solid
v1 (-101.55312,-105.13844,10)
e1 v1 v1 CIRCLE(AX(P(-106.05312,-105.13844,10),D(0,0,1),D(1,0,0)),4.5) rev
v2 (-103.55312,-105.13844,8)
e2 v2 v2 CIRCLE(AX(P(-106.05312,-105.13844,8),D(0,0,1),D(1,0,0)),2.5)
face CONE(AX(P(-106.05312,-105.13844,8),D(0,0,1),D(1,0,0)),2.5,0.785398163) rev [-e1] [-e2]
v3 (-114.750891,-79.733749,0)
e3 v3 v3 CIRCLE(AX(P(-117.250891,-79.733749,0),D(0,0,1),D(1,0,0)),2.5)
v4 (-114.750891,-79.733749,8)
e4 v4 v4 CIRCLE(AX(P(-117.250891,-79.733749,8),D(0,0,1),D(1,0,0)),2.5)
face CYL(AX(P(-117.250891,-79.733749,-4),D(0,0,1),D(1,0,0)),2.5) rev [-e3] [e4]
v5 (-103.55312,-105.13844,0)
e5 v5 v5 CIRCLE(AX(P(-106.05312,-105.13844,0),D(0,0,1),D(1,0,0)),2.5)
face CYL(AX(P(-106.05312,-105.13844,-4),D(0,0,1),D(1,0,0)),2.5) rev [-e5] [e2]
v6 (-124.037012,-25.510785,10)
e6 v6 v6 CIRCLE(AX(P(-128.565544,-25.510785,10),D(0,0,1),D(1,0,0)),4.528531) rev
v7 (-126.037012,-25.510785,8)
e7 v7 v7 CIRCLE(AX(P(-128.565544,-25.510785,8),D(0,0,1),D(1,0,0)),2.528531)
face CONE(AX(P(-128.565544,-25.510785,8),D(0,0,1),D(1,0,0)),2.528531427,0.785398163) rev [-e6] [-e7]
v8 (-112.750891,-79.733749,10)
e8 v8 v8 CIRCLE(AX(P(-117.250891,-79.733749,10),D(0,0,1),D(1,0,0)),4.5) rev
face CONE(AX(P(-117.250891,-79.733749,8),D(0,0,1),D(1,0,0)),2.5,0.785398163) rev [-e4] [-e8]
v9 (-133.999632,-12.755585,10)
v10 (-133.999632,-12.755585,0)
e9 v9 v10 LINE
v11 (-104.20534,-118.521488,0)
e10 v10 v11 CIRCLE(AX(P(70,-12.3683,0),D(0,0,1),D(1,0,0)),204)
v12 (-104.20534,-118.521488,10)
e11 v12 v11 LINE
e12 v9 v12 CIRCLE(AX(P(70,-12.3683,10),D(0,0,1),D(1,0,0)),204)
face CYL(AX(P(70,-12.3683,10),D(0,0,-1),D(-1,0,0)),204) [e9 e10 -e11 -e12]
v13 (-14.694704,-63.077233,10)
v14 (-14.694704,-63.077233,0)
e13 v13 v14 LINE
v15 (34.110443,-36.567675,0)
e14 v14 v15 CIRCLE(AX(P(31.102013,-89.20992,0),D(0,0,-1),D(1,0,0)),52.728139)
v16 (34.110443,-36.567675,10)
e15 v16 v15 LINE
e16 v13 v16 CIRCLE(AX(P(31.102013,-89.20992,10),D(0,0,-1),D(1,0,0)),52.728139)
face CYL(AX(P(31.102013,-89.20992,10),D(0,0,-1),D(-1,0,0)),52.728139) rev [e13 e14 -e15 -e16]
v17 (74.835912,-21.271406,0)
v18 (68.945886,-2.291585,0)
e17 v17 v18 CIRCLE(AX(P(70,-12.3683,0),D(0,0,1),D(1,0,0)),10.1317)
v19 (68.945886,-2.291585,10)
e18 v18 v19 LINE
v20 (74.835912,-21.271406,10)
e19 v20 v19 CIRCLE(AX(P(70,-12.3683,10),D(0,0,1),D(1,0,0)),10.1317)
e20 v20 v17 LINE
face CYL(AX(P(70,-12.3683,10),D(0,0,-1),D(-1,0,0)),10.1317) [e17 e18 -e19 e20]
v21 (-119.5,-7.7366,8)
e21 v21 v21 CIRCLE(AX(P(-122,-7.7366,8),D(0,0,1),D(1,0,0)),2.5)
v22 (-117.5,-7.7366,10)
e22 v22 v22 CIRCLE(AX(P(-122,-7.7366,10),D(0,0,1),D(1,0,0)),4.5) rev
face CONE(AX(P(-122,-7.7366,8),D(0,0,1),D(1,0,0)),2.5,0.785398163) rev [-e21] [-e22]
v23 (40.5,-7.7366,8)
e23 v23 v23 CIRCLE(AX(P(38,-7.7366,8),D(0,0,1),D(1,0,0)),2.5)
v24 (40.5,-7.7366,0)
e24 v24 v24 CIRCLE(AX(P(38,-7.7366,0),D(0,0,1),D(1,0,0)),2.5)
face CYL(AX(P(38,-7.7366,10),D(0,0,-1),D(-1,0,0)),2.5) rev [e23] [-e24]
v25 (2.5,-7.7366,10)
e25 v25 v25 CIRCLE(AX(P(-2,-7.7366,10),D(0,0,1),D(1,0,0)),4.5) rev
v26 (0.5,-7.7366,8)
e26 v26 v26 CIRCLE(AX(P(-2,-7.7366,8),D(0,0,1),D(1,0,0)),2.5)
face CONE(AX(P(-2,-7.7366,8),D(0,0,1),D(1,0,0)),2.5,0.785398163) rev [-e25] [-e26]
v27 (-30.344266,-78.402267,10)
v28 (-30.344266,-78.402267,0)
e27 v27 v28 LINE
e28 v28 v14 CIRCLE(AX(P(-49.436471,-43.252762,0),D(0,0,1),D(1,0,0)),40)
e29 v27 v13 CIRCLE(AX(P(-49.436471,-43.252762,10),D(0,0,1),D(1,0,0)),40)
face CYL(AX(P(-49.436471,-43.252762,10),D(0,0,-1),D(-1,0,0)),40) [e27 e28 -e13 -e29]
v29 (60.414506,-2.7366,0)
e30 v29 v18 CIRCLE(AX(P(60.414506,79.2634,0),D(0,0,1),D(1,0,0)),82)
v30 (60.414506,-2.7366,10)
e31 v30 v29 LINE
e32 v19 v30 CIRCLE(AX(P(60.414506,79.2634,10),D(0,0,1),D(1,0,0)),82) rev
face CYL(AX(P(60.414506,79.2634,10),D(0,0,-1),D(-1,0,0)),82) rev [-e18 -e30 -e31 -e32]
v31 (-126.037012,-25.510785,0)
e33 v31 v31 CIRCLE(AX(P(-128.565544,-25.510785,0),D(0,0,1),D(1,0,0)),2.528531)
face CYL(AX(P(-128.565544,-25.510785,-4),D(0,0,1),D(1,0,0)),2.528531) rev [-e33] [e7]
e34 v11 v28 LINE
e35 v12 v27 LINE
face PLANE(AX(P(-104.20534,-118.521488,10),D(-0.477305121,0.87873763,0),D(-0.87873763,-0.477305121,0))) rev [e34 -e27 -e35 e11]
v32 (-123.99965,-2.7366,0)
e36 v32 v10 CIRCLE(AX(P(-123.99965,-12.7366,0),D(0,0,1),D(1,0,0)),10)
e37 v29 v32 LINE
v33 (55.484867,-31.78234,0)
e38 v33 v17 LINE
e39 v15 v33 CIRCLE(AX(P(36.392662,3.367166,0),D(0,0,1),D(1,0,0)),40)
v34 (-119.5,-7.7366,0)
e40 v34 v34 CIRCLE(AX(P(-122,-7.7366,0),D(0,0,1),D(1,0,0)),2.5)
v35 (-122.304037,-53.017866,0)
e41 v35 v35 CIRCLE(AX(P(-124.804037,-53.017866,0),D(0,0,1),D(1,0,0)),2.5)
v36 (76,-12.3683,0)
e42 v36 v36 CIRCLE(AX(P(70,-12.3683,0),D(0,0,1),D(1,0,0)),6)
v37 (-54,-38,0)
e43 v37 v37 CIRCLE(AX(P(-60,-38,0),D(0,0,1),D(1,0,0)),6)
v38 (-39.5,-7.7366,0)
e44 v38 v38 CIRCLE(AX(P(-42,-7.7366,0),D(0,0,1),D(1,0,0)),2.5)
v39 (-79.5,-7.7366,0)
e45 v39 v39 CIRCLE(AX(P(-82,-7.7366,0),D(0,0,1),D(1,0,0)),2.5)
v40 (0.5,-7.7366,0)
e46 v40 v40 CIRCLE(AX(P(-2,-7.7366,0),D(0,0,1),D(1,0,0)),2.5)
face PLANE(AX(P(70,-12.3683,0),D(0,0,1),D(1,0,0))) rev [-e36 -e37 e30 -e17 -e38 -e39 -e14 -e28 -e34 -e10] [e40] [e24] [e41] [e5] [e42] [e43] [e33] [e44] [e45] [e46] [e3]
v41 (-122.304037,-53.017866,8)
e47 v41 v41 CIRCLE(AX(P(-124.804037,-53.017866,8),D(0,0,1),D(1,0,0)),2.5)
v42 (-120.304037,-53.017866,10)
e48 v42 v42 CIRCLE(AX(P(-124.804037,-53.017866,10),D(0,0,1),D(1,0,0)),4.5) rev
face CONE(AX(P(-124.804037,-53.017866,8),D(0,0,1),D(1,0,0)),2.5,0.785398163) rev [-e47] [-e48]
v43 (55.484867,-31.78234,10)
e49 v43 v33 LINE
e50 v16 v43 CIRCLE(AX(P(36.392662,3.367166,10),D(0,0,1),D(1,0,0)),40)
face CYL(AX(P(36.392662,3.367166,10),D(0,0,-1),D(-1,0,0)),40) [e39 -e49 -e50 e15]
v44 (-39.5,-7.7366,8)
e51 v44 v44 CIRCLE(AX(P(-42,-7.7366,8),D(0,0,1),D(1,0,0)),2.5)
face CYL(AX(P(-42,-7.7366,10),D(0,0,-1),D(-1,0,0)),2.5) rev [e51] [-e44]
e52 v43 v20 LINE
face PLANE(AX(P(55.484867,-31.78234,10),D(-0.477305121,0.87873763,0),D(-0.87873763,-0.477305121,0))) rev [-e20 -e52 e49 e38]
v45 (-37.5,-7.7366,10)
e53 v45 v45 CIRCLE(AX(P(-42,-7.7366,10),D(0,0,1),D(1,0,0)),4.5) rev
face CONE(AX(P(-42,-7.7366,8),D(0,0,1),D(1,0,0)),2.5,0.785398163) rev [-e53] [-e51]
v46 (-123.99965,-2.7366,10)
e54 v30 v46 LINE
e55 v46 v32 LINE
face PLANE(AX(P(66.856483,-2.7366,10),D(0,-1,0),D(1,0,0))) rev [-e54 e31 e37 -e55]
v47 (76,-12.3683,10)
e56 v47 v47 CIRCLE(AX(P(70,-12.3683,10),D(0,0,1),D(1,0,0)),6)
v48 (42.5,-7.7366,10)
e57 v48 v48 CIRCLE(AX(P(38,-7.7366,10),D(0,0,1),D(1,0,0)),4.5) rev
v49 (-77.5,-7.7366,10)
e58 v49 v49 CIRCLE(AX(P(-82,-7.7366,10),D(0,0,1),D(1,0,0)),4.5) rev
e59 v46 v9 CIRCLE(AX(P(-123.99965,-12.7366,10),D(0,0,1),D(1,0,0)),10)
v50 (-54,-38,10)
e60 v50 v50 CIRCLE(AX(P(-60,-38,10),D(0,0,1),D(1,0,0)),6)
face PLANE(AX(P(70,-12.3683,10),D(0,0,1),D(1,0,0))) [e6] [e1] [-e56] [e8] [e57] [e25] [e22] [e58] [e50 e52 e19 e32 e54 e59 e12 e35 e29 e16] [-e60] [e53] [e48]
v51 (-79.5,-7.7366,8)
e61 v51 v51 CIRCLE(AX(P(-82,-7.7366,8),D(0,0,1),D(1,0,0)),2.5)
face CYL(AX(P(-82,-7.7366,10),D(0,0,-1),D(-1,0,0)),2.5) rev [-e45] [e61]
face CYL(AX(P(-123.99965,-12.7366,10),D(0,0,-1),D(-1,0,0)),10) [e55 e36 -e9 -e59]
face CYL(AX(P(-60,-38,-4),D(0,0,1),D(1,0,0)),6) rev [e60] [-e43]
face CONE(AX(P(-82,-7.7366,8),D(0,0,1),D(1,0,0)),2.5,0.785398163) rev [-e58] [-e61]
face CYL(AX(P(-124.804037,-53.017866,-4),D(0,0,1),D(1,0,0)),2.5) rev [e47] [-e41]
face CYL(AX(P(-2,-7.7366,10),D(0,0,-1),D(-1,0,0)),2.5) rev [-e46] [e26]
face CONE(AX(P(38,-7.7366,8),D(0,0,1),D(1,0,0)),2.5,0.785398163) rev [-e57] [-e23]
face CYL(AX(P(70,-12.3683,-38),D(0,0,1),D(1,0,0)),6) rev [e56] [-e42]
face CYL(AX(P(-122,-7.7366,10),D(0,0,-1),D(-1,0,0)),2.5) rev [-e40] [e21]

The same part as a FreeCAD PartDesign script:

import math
import FreeCAD as App
import Part
import Sketcher


def edges_at(feature, points):
    """Names of the edges that pass closest to the given points."""
    edges = feature.Shape.Edges
    near = lambda p: min(range(len(edges)), key=lambda i: edges[i].distToShape(Part.Vertex(*p))[0])
    return sorted({f"Edge{near(p) + 1}" for p in points})

doc = App.newDocument("Part")
body = doc.addObject("PartDesign::Body", "Body")

# Sketch on XY plane
sketch1 = doc.addObject("Sketcher::SketchObject", "Sketch")
body.addObject(sketch1)
sketch1.AttachmentSupport = (doc.XY_Plane, [""])
sketch1.MapMode = "FlatFace"
sketch1.addGeometry([
    Part.LineSegment(App.Vector(55.5, -31.8, 0), App.Vector(74.8, -21.3, 0)),  # 0
    Part.ArcOfCircle(Part.Circle(App.Vector(70, -12.4, 0), App.Vector(0, 0, 1), 10.1), math.radians(-61), math.radians(108)),  # 1
    Part.LineSegment(App.Vector(66.9, -2.7, 0), App.Vector(-124, -2.7, 0)),  # 2
    Part.ArcOfCircle(Part.Circle(App.Vector(-124, -12.7, 0), App.Vector(0, 0, 1), 10), math.radians(90), math.radians(180)),  # 3
    Part.ArcOfCircle(Part.Circle(App.Vector(70, -12.4, 0), App.Vector(0, 0, 1), 204), math.radians(-180), math.radians(-149)),  # 4
    Part.LineSegment(App.Vector(-104.2, -118.5, 0), App.Vector(-30.3, -78.4, 0)),  # 5
    Part.ArcOfCircle(Part.Circle(App.Vector(-49.4, -43.3, 0), App.Vector(0, 0, 1), 40), math.radians(-61), math.radians(-30)),  # 6
    Part.ArcOfCircle(Part.Circle(App.Vector(31.1, -89.2, 0), App.Vector(0, 0, 1), 52.7), math.radians(87), math.radians(150)),  # 7
    Part.ArcOfCircle(Part.Circle(App.Vector(36.4, 3.4, 0), App.Vector(0, 0, 1), 40), math.radians(-93), math.radians(-61)),  # 8
    Part.Circle(App.Vector(-122, -7.7, 0), App.Vector(0, 0, 1), 2.5),  # 9
    Part.Circle(App.Vector(-82, -7.7, 0), App.Vector(0, 0, 1), 2.5),  # 10
    Part.Circle(App.Vector(-42, -7.7, 0), App.Vector(0, 0, 1), 2.5),  # 11
    Part.Circle(App.Vector(-2, -7.7, 0), App.Vector(0, 0, 1), 2.5),  # 12
    Part.Circle(App.Vector(38, -7.7, 0), App.Vector(0, 0, 1), 2.5),  # 13
], False)
sketch1.addConstraint([
    Sketcher.Constraint("Tangent", 0, 2, 1, 1),
    Sketcher.Constraint("Coincident", 1, 2, 2, 1),
    Sketcher.Constraint("Tangent", 2, 2, 3, 1),
    Sketcher.Constraint("Tangent", 3, 2, 4, 1),
    Sketcher.Constraint("Coincident", 4, 2, 5, 1),
    Sketcher.Constraint("Tangent", 5, 2, 6, 1),
    Sketcher.Constraint("Tangent", 6, 2, 7, 2),
    Sketcher.Constraint("Tangent", 7, 1, 8, 1),
    Sketcher.Constraint("Tangent", 8, 2, 0, 1),
    Sketcher.Constraint("Horizontal", 2),
    Sketcher.Constraint("Coincident", 4, 3, 1, 3),
    Sketcher.Constraint("Equal", 6, 8),
    Sketcher.Constraint("Equal", 9, 10),
    Sketcher.Constraint("Equal", 10, 11),
    Sketcher.Constraint("Equal", 11, 12),
    Sketcher.Constraint("Equal", 12, 13),
    Sketcher.Constraint("Parallel", 0, 5),
    Sketcher.Constraint("Horizontal", 9, 3, 10, 3),
    Sketcher.Constraint("Horizontal", 10, 3, 11, 3),
    Sketcher.Constraint("Horizontal", 11, 3, 12, 3),
    Sketcher.Constraint("Horizontal", 12, 3, 13, 3),
    Sketcher.Constraint("Diameter", 9, 5.0),
    Sketcher.Constraint("Radius", 3, 10.0),
    Sketcher.Constraint("Radius", 4, 204.0),
    Sketcher.Constraint("Radius", 6, 40.0),
    Sketcher.Constraint("DistanceX", -1, 1, 1, 3, 70.0),
    Sketcher.Constraint("DistanceX", 9, 3, -1, 1, 122.0),
    Sketcher.Constraint("DistanceX", 10, 3, -1, 1, 82.0),
    Sketcher.Constraint("DistanceX", 11, 3, -1, 1, 42.0),
    Sketcher.Constraint("DistanceX", 12, 3, -1, 1, 2.0),
    Sketcher.Constraint("DistanceX", -1, 1, 13, 3, 38.0),
    Sketcher.Constraint("DistanceY", 3, 3, 9, 3, 5.0),
    Sketcher.Constraint("Radius", 1, 10.1317),
    Sketcher.Constraint("Radius", 7, 52.728139),
    Sketcher.Constraint("DistanceY", 1, 3, -1, 1, 12.3683),
    Sketcher.Constraint("DistanceY", 3, 3, -1, 1, 12.7366),
    Sketcher.Constraint("DistanceX", 6, 3, -1, 1, 49.436471),
    Sketcher.Constraint("DistanceY", 7, 3, -1, 1, 89.20992),
    Sketcher.Constraint("DistanceX", 4, 2, -1, 1, 104.20534),
    Sketcher.Constraint("DistanceY", 8, 2, -1, 1, 31.78234),
])
pad1 = doc.addObject("PartDesign::Pad", "Pad")
body.addObject(pad1)
pad1.Profile = sketch1
pad1.Length = 10
doc.recompute()

chamfer = doc.addObject("PartDesign::Chamfer", "Chamfer")
body.addObject(chamfer)
chamfer.Base = (pad1, edges_at(pad1, [
    (-124.5, -7.737, 10),
    (-84.5, -7.737, 10),
    (-44.5, -7.737, 10),
    (-4.5, -7.737, 10),
    (35.5, -7.737, 10),
]))
chamfer.Size = 2

# Sketch on XY plane
sketch2 = doc.addObject("Sketcher::SketchObject", "Sketch001")
body.addObject(sketch2)
sketch2.AttachmentSupport = (doc.XY_Plane, [""])
sketch2.MapMode = "FlatFace"
sketch2.AttachmentOffset = App.Placement(App.Vector(0, 0, 10), App.Rotation())
sketch2.addGeometry(Part.Circle(App.Vector(70, -12, 0), App.Vector(0, 0, 1), 6), False)
sketch2.addConstraint([
    Sketcher.Constraint("Diameter", 0, 12.0),
    Sketcher.Constraint("DistanceX", -1, 1, 0, 3, 70.0),
    Sketcher.Constraint("DistanceY", 0, 3, -1, 1, 12.3683),
])
pocket1 = doc.addObject("PartDesign::Pocket", "Pocket")
body.addObject(pocket1)
pocket1.Profile = sketch2
pocket1.Length = 48

# Sketch on XY plane
sketch3 = doc.addObject("Sketcher::SketchObject", "Sketch002")
body.addObject(sketch3)
sketch3.AttachmentSupport = (doc.XY_Plane, [""])
sketch3.MapMode = "FlatFace"
sketch3.AttachmentOffset = App.Placement(App.Vector(0, 0, 10), App.Rotation())
sketch3.addGeometry(Part.Circle(App.Vector(-60, -38, 0), App.Vector(0, 0, 1), 6), False)
sketch3.addConstraint([
    Sketcher.Constraint("Diameter", 0, 12.0),
    Sketcher.Constraint("DistanceX", 0, 3, -1, 1, 60.0),
    Sketcher.Constraint("DistanceY", 0, 3, -1, 1, 38.0),
])
pocket2 = doc.addObject("PartDesign::Pocket", "Pocket001")
body.addObject(pocket2)
pocket2.Profile = sketch3
pocket2.Length = 14

# Sketch on XY plane
sketch4 = doc.addObject("Sketcher::SketchObject", "Sketch003")
body.addObject(sketch4)
sketch4.AttachmentSupport = (doc.XY_Plane, [""])
sketch4.MapMode = "FlatFace"
sketch4.AttachmentOffset = App.Placement(App.Vector(0, 0, 10), App.Rotation())
sketch4.addGeometry([
    Part.Circle(App.Vector(-128.6, -25.5, 0), App.Vector(0, 0, 1), 2.5),
    Part.Circle(App.Vector(-124.8, -53, 0), App.Vector(0, 0, 1), 2.5),
    Part.Circle(App.Vector(-117.3, -79.7, 0), App.Vector(0, 0, 1), 2.5),
    Part.Circle(App.Vector(-106.1, -105.1, 0), App.Vector(0, 0, 1), 2.5),
], False)
sketch4.addConstraint([
    Sketcher.Constraint("Equal", 1, 2),
    Sketcher.Constraint("Equal", 2, 3),
    Sketcher.Constraint("Diameter", 1, 5.0),
    Sketcher.Constraint("Diameter", 0, 5.057063),
    Sketcher.Constraint("DistanceX", 2, 3, -1, 1, 117.250891),
    Sketcher.Constraint("DistanceY", 2, 3, -1, 1, 79.733749),
    Sketcher.Constraint("DistanceX", 3, 3, -1, 1, 106.05312),
    Sketcher.Constraint("DistanceY", 3, 3, -1, 1, 105.13844),
    Sketcher.Constraint("DistanceY", 1, 3, 0, 3, 27.507081),
    Sketcher.Constraint("DistanceX", 0, 3, -1, 1, 128.565544),
    Sketcher.Constraint("DistanceY", 0, 3, -1, 1, 25.510785),
    Sketcher.Constraint("DistanceX", 1, 3, -1, 1, 124.804037),
])
pocket3 = doc.addObject("PartDesign::Pocket", "Pocket002")
body.addObject(pocket3)
pocket3.Profile = sketch4
pocket3.Length = 14
doc.recompute()

chamfer2 = doc.addObject("PartDesign::Chamfer", "Chamfer001")
body.addObject(chamfer2)
chamfer2.Base = (pocket3, edges_at(pocket3, [
    (-131.094, -25.511, 10),
    (-127.304, -53.018, 10),
    (-119.751, -79.734, 10),
    (-108.553, -105.138, 10),
]))
chamfer2.Size = 2
doc.recompute()

fillet = doc.addObject("PartDesign::Fillet", "Fillet")
body.addObject(fillet)
fillet.Base = (chamfer2, edges_at(chamfer2, [(66.856, -2.737, 5)]))
fillet.Radius = 82

doc.recompute()
